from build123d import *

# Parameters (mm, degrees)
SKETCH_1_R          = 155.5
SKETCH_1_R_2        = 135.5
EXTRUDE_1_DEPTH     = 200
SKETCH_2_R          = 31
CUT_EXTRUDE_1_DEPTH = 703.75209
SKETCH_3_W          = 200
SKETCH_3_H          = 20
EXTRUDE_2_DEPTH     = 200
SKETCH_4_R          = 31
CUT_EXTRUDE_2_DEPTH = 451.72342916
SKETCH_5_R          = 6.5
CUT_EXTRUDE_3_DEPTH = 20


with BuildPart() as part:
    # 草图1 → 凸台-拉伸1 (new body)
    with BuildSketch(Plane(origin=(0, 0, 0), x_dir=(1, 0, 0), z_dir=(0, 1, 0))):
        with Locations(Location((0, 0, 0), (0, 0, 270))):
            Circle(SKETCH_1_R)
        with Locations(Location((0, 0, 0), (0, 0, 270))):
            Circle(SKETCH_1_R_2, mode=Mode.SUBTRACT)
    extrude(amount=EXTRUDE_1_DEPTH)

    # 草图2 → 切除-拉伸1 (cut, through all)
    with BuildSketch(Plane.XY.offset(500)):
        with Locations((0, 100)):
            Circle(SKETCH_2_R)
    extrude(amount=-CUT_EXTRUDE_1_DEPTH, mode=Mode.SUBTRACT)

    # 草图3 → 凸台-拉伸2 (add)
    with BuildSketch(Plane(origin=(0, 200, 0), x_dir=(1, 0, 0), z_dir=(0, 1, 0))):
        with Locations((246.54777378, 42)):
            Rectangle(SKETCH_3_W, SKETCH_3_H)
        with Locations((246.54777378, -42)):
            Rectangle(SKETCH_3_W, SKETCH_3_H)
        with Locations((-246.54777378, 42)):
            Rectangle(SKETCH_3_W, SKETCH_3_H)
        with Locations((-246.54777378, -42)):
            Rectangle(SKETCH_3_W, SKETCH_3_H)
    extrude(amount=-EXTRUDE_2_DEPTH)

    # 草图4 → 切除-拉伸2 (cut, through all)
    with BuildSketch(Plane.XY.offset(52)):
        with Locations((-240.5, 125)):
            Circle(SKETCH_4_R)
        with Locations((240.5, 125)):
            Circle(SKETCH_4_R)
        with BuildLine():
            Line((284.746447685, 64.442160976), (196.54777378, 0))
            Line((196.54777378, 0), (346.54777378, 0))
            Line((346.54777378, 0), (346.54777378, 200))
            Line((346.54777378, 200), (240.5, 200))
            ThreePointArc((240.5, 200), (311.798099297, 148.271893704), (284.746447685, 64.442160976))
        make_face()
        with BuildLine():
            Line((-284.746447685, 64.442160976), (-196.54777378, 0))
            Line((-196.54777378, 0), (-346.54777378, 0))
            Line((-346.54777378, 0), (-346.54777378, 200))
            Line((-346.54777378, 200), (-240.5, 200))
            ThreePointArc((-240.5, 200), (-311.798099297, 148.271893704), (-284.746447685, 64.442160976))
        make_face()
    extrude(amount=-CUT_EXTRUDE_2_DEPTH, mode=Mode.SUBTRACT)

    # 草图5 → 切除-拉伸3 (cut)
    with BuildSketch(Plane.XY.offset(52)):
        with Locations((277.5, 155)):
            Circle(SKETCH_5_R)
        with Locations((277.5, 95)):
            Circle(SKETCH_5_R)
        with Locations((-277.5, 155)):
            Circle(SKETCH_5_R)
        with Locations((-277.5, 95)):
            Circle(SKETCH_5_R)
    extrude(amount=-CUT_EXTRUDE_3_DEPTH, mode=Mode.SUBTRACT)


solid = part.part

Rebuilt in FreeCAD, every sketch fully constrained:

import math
import FreeCAD as App
import Part
import Sketcher


def add_polygon(sketch, points):
    """Adds a closed chain of lines whose ends are joined by coincident constraints."""
    first, n = sketch.GeometryCount, len(points)
    for a, b in zip(points, points[1:] + points[:1]):
        sketch.addGeometry(Part.LineSegment(App.Vector(*a, 0), App.Vector(*b, 0)), False)
    for i in range(n):
        sketch.addConstraint(Sketcher.Constraint("Coincident", first + i, 2, first + (i + 1) % n, 1))

doc = App.newDocument("Part")
body = doc.addObject("PartDesign::Body", "Body")

# Sketch on XZ plane
sketch1 = doc.addObject("Sketcher::SketchObject", "Sketch")
body.addObject(sketch1)
sketch1.AttachmentSupport = (doc.XZ_Plane, [""])
sketch1.MapMode = "FlatFace"
sketch1.addGeometry([
    Part.Circle(App.Vector(0, 0, 0), App.Vector(0, 0, 1), 156),
    Part.Circle(App.Vector(0, 0, 0), App.Vector(0, 0, 1), 136),
], False)
sketch1.addConstraint([
    Sketcher.Constraint("Coincident", 0, 3, -1, 1),
    Sketcher.Constraint("Coincident", 1, 3, -1, 1),
    Sketcher.Constraint("Diameter", 0, 311.0),
    Sketcher.Constraint("Diameter", 1, 271.0),
])
pad1 = doc.addObject("PartDesign::Pad", "Pad")
body.addObject(pad1)
pad1.Profile = sketch1
pad1.Length = 200
pad1.Reversed = True

# Sketch on XY plane
sketch2 = doc.addObject("Sketcher::SketchObject", "Sketch001")
body.addObject(sketch2)
sketch2.AttachmentSupport = (doc.XY_Plane, [""])
sketch2.MapMode = "FlatFace"
sketch2.AttachmentOffset = App.Placement(App.Vector(0, 0, 500), App.Rotation())
sketch2.addGeometry(Part.Circle(App.Vector(0, 100, 0), App.Vector(0, 0, 1), 31), False)
sketch2.addConstraint([
    Sketcher.Constraint("PointOnObject", 0, 3, -2),
    Sketcher.Constraint("Diameter", 0, 62.0),
    Sketcher.Constraint("DistanceY", -1, 1, 0, 3, 100.0),
])
pocket1 = doc.addObject("PartDesign::Pocket", "Pocket")
body.addObject(pocket1)
pocket1.Profile = sketch2
pocket1.Type = "ThroughAll"

# Sketch on XZ plane
sketch3 = doc.addObject("Sketcher::SketchObject", "Sketch002")
body.addObject(sketch3)
sketch3.AttachmentSupport = (doc.XZ_Plane, [""])
sketch3.MapMode = "FlatFace"
sketch3.AttachmentOffset = App.Placement(App.Vector(0, 0, -200), App.Rotation())
add_polygon(sketch3, [(147, -52), (147, -32), (347, -32), (347, -52)])  # lines 0-3
add_polygon(sketch3, [(147, 32), (147, 52), (347, 52), (347, 32)])  # lines 4-7
add_polygon(sketch3, [(-347, -52), (-347, -32), (-147, -32), (-147, -52)])  # lines 8-11
add_polygon(sketch3, [(-347, 32), (-347, 52), (-147, 52), (-147, 32)])  # lines 12-15
sketch3.addConstraint([
    Sketcher.Constraint("Vertical", 0),
    Sketcher.Constraint("Horizontal", 1),
    Sketcher.Constraint("Vertical", 2),
    Sketcher.Constraint("Horizontal", 3),
    Sketcher.Constraint("Vertical", 4),
    Sketcher.Constraint("Horizontal", 5),
    Sketcher.Constraint("Vertical", 6),
    Sketcher.Constraint("Horizontal", 7),
    Sketcher.Constraint("Vertical", 8),
    Sketcher.Constraint("Horizontal", 9),
    Sketcher.Constraint("Vertical", 10),
    Sketcher.Constraint("Horizontal", 11),
    Sketcher.Constraint("Vertical", 12),
    Sketcher.Constraint("Horizontal", 13),
    Sketcher.Constraint("Vertical", 14),
    Sketcher.Constraint("Horizontal", 15),
    Sketcher.Constraint("Symmetric", 6, 2, 8, 2, -1, 1),
    Sketcher.Constraint("Symmetric", 4, 2, 10, 2, -1, 1),
    Sketcher.Constraint("Symmetric", 2, 2, 12, 2, -1, 1),
    Sketcher.Constraint("Symmetric", 0, 2, 14, 2, -1, 1),
    Sketcher.Constraint("Symmetric", 1, 2, 8, 2, -2),
    Sketcher.Constraint("Symmetric", 3, 2, 10, 2, -2),
    Sketcher.Constraint("DistanceX", 1, 1, 1, 2, 200.0),
    Sketcher.Constraint("DistanceY", 0, 1, 0, 2, 20.0),
    Sketcher.Constraint("DistanceY", 0, 2, -1, 1, 32.0),
    Sketcher.Constraint("DistanceX", -1, 1, 0, 2, 146.547774),
])
pad2 = doc.addObject("PartDesign::Pad", "Pad001")
body.addObject(pad2)
pad2.Profile = sketch3
pad2.Length = 200

# Sketch on XY plane
sketch4 = doc.addObject("Sketcher::SketchObject", "Sketch003")
body.addObject(sketch4)
sketch4.AttachmentSupport = (doc.XY_Plane, [""])
sketch4.MapMode = "FlatFace"
sketch4.AttachmentOffset = App.Placement(App.Vector(0, 0, 52), App.Rotation())
sketch4.addGeometry([
    Part.Circle(App.Vector(-240, 125, 0), App.Vector(0, 0, 1), 31),  # 0
    Part.Circle(App.Vector(240, 125, 0), App.Vector(0, 0, 1), 31),  # 1
    Part.LineSegment(App.Vector(285, 64, 0), App.Vector(197, 0, 0)),  # 2
    Part.LineSegment(App.Vector(197, 0, 0), App.Vector(347, 0, 0)),  # 3
    Part.LineSegment(App.Vector(347, 0, 0), App.Vector(347, 200, 0)),  # 4
    Part.LineSegment(App.Vector(347, 200, 0), App.Vector(240, 200, 0)),  # 5
    Part.ArcOfCircle(Part.Circle(App.Vector(240, 125, 0), App.Vector(0, 0, 1), 75), math.radians(-54), math.radians(90)),  # 6
    Part.LineSegment(App.Vector(-197, 0, 0), App.Vector(-285, 64, 0)),  # 7
    Part.ArcOfCircle(Part.Circle(App.Vector(-240, 125, 0), App.Vector(0, 0, 1), 75), math.radians(90), math.radians(234)),  # 8
    Part.LineSegment(App.Vector(-240, 200, 0), App.Vector(-347, 200, 0)),  # 9
    Part.LineSegment(App.Vector(-347, 200, 0), App.Vector(-347, 0, 0)),  # 10
    Part.LineSegment(App.Vector(-347, 0, 0), App.Vector(-197, 0, 0)),  # 11
], False)
sketch4.addConstraint([
    Sketcher.Constraint("Coincident", 2, 2, 3, 1),
    Sketcher.Constraint("Coincident", 3, 2, 4, 1),
    Sketcher.Constraint("Coincident", 4, 2, 5, 1),
    Sketcher.Constraint("Tangent", 5, 2, 6, 2),
    Sketcher.Constraint("Tangent", 6, 1, 2, 1),
    Sketcher.Constraint("Tangent", 7, 2, 8, 2),
    Sketcher.Constraint("Tangent", 8, 1, 9, 1),
    Sketcher.Constraint("Coincident", 9, 2, 10, 1),
    Sketcher.Constraint("Coincident", 10, 2, 11, 1),
    Sketcher.Constraint("Coincident", 11, 2, 7, 1),
    Sketcher.Constraint("Horizontal", 3),
    Sketcher.Constraint("Vertical", 4),
    Sketcher.Constraint("Horizontal", 5),
    Sketcher.Constraint("Horizontal", 9),
    Sketcher.Constraint("Vertical", 10),
    Sketcher.Constraint("Horizontal", 11),
    Sketcher.Constraint("Coincident", 6, 3, 1, 3),
    Sketcher.Constraint("Coincident", 8, 3, 0, 3),
    Sketcher.Constraint("Equal", 0, 1),
    Sketcher.Constraint("Equal", 6, 8),
    Sketcher.Constraint("Symmetric", 3, 2, 10, 2, -1, 1),
    Sketcher.Constraint("Symmetric", 0, 3, 1, 3, -2),
    Sketcher.Constraint("Symmetric", 2, 2, 11, 2, -2),
    Sketcher.Constraint("Diameter", 0, 62.0),
    Sketcher.Constraint("Radius", 6, 75.0),
    Sketcher.Constraint("DistanceX", 3, 1, 3, 2, 150.0),
    Sketcher.Constraint("DistanceY", 4, 1, 4, 2, 200.0),
    Sketcher.Constraint("DistanceX", 0, 3, 1, 3, 481.0),
    Sketcher.Constraint("Distance", 2, 109.232771),
])
pocket2 = doc.addObject("PartDesign::Pocket", "Pocket001")
body.addObject(pocket2)
pocket2.Profile = sketch4
pocket2.Type = "ThroughAll"

# Sketch on XY plane
sketch5 = doc.addObject("Sketcher::SketchObject", "Sketch004")
body.addObject(sketch5)
sketch5.AttachmentSupport = (doc.XY_Plane, [""])
sketch5.MapMode = "FlatFace"
sketch5.AttachmentOffset = App.Placement(App.Vector(0, 0, 52), App.Rotation())
sketch5.addGeometry([
    Part.Circle(App.Vector(278, 155, 0), App.Vector(0, 0, 1), 6),
    Part.Circle(App.Vector(278, 95, 0), App.Vector(0, 0, 1), 6),
    Part.Circle(App.Vector(-278, 155, 0), App.Vector(0, 0, 1), 6),
    Part.Circle(App.Vector(-278, 95, 0), App.Vector(0, 0, 1), 6),
], False)
sketch5.addConstraint([
    Sketcher.Constraint("Equal", 0, 1),
    Sketcher.Constraint("Equal", 1, 2),
    Sketcher.Constraint("Equal", 2, 3),
    Sketcher.Constraint("Symmetric", 0, 3, 2, 3, -2),
    Sketcher.Constraint("Symmetric", 1, 3, 3, 3, -2),
    Sketcher.Constraint("Vertical", 0, 3, 1, 3),
    Sketcher.Constraint("Diameter", 0, 13.0),
    Sketcher.Constraint("DistanceY", -1, 1, 0, 3, 155.0),
    Sketcher.Constraint("DistanceY", -1, 1, 1, 3, 95.0),
    Sketcher.Constraint("DistanceX", 2, 3, 0, 3, 555.0),
])
pocket3 = doc.addObject("PartDesign::Pocket", "Pocket002")
body.addObject(pocket3)
pocket3.Profile = sketch5
pocket3.Length = 20

doc.recompute()
